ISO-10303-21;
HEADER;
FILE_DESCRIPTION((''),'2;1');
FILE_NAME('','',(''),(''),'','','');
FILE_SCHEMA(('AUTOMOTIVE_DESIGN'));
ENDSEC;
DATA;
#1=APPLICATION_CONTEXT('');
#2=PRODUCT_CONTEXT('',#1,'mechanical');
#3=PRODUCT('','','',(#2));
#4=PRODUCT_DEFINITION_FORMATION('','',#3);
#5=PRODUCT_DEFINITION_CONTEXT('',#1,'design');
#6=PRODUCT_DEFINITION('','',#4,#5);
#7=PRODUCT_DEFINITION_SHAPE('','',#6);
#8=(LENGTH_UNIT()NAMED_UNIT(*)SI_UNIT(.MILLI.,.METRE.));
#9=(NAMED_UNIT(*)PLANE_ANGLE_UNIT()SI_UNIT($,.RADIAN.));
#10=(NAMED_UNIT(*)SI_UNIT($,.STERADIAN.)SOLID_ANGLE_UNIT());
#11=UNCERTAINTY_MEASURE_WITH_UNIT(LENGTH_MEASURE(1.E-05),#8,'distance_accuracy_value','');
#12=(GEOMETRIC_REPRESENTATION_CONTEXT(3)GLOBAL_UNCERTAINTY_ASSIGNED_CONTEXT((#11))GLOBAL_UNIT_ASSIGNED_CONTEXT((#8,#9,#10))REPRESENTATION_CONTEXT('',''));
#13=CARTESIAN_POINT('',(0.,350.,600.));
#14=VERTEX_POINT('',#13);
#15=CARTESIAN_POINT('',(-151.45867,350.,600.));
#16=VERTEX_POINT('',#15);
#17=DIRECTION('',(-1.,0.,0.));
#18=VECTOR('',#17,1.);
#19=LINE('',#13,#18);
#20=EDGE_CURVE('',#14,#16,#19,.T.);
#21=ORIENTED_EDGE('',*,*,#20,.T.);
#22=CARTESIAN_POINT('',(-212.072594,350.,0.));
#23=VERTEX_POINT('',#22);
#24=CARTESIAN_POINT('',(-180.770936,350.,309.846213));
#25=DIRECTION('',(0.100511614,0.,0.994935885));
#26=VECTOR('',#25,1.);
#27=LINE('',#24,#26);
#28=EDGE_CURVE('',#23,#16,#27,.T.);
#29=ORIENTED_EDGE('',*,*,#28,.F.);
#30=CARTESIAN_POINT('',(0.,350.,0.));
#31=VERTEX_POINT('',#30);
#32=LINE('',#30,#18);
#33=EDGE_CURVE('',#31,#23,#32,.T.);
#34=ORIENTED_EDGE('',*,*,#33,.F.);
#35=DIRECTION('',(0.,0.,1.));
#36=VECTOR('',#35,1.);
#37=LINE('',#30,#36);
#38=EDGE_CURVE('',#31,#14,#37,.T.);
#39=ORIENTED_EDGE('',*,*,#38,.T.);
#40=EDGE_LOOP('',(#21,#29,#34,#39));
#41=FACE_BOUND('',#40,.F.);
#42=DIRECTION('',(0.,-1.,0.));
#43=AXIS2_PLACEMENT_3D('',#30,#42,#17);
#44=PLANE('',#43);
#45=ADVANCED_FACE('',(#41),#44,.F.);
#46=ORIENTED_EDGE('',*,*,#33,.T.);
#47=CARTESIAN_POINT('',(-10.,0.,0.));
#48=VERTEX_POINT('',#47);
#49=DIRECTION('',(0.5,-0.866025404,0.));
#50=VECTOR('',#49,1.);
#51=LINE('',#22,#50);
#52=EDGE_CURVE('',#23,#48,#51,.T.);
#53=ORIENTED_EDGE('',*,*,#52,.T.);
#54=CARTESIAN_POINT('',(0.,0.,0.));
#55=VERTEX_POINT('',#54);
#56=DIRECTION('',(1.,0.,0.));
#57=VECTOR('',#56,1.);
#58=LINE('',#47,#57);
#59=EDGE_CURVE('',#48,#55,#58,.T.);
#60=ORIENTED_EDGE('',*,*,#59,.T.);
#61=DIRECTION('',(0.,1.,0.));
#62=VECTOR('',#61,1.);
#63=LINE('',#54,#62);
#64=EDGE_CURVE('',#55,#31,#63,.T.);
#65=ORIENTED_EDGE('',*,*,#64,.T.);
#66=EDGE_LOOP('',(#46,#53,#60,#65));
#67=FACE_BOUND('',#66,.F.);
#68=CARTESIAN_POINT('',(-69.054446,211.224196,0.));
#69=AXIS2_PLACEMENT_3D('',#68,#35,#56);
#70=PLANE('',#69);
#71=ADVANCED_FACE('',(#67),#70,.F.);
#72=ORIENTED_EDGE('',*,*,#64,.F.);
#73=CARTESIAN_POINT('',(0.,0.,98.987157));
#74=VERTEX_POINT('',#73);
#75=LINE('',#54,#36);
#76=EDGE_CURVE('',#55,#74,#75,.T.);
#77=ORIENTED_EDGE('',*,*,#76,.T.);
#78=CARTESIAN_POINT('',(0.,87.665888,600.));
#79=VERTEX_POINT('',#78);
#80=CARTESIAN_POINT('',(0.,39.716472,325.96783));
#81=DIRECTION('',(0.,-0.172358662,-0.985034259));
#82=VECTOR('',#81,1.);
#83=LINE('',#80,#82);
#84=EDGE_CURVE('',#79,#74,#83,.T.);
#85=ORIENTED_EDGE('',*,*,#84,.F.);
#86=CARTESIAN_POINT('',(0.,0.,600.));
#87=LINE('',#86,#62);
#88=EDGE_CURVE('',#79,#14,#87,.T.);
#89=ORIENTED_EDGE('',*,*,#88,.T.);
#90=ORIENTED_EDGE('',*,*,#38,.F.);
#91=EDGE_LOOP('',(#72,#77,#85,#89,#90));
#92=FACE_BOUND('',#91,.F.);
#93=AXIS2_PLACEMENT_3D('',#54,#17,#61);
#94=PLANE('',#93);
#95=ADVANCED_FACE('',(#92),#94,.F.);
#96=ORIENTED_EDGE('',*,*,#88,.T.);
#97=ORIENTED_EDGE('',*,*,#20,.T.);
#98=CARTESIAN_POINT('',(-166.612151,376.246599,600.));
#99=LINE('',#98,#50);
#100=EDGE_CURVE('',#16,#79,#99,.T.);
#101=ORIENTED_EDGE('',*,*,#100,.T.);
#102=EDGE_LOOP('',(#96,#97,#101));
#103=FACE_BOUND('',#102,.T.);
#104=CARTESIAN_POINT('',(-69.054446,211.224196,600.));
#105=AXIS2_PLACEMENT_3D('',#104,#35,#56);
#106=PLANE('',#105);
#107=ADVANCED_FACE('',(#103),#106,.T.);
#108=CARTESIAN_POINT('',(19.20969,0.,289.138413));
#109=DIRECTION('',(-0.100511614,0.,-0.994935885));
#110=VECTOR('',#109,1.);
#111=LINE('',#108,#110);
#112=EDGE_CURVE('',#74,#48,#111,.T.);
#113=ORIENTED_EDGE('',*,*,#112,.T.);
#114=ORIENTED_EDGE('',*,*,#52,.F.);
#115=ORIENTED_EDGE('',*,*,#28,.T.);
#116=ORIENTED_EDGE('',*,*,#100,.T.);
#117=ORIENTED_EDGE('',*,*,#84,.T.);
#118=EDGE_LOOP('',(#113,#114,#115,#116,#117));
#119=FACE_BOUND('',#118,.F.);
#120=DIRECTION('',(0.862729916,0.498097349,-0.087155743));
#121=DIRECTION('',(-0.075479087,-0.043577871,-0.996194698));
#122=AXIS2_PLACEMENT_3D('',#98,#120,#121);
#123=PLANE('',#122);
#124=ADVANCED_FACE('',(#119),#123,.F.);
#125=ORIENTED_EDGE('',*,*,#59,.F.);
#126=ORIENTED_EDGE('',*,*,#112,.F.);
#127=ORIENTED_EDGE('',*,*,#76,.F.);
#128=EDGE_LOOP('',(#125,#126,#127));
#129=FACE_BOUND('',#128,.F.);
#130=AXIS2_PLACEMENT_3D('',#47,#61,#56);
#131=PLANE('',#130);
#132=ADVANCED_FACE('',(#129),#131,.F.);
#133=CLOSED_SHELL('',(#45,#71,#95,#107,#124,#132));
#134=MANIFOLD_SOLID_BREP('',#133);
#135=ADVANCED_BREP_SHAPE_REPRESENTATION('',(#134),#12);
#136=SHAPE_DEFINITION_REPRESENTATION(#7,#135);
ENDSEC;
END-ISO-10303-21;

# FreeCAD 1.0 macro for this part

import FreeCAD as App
import Part
import Sketcher

V = App.Vector
Q = App.Units.Quantity


def add_polygon(sketch, points):
    """Adds a closed chain of lines whose ends are joined by coincident constraints."""
    first, n = sketch.GeometryCount, len(points)
    for a, b in zip(points, points[1:] + points[:1]):
        sketch.addGeometry(Part.LineSegment(App.Vector(*a, 0), App.Vector(*b, 0)), False)
    for i in range(n):
        sketch.addConstraint(Sketcher.Constraint("Coincident", first + i, 2, first + (i + 1) % n, 1))

doc = App.newDocument("Part")
body = doc.addObject("PartDesign::Body", "Body")

# Sketch on XY plane
sketch1 = body.newObject("Sketcher::SketchObject", "Sketch")
sketch1.AttachmentSupport = (doc.getObject("XY_Plane"), [""])
sketch1.MapMode = "FlatFace"
add_polygon(sketch1, [(-10, 0), (0, 0), (0, 350), (-212.072594, 350)])  # lines 0-3
sketch1.addConstraint([
    Sketcher.Constraint("Horizontal", 0),
    Sketcher.Constraint("Vertical", 1),
    Sketcher.Constraint("Horizontal", 2),
    Sketcher.Constraint("Coincident", 0, 2, -1, 1),
    Sketcher.Constraint("DistanceX", 0, 1, 0, 2, 10.0),
    Sketcher.Constraint("DistanceY", 1, 1, 1, 2, 350.0),
    Sketcher.Constraint("Angle", 3, Q("-60 deg")),
])
pad1 = body.newObject("PartDesign::Pad", "Pad")
pad1.Profile = sketch1
pad1.Length = 600

# Sketch on an angled plane
sketch2 = body.newObject("Sketcher::SketchObject", "Sketch001")
sketch2.Placement = App.Placement(V(-204.572594, 354.330127, 0), App.Rotation(V(-0.866025404, -0.5, 0), V(0, 0, 1), V(-0.5, 0.866025404, 0), "ZXY"))
add_polygon(sketch2, [(8.660254, 600), (-43.832944, 600), (8.660254, 0)])  # lines 0-2
sketch2.addConstraint([
    Sketcher.Constraint("Horizontal", 0),
    Sketcher.Constraint("Vertical", 2),
    Sketcher.Constraint("PointOnObject", 1, 2, -1),
    Sketcher.Constraint("DistanceY", 2, 1, 2, 2, 600.0),
    Sketcher.Constraint("Angle", 1, Q("-85 deg")),
    Sketcher.Constraint("DistanceX", 0, 2, -1, 1, 43.832944),
])
pocket1 = body.newObject("PartDesign::Pocket", "Pocket")
pocket1.Profile = sketch2
pocket1.Type = "ThroughAll"

doc.recompute()
